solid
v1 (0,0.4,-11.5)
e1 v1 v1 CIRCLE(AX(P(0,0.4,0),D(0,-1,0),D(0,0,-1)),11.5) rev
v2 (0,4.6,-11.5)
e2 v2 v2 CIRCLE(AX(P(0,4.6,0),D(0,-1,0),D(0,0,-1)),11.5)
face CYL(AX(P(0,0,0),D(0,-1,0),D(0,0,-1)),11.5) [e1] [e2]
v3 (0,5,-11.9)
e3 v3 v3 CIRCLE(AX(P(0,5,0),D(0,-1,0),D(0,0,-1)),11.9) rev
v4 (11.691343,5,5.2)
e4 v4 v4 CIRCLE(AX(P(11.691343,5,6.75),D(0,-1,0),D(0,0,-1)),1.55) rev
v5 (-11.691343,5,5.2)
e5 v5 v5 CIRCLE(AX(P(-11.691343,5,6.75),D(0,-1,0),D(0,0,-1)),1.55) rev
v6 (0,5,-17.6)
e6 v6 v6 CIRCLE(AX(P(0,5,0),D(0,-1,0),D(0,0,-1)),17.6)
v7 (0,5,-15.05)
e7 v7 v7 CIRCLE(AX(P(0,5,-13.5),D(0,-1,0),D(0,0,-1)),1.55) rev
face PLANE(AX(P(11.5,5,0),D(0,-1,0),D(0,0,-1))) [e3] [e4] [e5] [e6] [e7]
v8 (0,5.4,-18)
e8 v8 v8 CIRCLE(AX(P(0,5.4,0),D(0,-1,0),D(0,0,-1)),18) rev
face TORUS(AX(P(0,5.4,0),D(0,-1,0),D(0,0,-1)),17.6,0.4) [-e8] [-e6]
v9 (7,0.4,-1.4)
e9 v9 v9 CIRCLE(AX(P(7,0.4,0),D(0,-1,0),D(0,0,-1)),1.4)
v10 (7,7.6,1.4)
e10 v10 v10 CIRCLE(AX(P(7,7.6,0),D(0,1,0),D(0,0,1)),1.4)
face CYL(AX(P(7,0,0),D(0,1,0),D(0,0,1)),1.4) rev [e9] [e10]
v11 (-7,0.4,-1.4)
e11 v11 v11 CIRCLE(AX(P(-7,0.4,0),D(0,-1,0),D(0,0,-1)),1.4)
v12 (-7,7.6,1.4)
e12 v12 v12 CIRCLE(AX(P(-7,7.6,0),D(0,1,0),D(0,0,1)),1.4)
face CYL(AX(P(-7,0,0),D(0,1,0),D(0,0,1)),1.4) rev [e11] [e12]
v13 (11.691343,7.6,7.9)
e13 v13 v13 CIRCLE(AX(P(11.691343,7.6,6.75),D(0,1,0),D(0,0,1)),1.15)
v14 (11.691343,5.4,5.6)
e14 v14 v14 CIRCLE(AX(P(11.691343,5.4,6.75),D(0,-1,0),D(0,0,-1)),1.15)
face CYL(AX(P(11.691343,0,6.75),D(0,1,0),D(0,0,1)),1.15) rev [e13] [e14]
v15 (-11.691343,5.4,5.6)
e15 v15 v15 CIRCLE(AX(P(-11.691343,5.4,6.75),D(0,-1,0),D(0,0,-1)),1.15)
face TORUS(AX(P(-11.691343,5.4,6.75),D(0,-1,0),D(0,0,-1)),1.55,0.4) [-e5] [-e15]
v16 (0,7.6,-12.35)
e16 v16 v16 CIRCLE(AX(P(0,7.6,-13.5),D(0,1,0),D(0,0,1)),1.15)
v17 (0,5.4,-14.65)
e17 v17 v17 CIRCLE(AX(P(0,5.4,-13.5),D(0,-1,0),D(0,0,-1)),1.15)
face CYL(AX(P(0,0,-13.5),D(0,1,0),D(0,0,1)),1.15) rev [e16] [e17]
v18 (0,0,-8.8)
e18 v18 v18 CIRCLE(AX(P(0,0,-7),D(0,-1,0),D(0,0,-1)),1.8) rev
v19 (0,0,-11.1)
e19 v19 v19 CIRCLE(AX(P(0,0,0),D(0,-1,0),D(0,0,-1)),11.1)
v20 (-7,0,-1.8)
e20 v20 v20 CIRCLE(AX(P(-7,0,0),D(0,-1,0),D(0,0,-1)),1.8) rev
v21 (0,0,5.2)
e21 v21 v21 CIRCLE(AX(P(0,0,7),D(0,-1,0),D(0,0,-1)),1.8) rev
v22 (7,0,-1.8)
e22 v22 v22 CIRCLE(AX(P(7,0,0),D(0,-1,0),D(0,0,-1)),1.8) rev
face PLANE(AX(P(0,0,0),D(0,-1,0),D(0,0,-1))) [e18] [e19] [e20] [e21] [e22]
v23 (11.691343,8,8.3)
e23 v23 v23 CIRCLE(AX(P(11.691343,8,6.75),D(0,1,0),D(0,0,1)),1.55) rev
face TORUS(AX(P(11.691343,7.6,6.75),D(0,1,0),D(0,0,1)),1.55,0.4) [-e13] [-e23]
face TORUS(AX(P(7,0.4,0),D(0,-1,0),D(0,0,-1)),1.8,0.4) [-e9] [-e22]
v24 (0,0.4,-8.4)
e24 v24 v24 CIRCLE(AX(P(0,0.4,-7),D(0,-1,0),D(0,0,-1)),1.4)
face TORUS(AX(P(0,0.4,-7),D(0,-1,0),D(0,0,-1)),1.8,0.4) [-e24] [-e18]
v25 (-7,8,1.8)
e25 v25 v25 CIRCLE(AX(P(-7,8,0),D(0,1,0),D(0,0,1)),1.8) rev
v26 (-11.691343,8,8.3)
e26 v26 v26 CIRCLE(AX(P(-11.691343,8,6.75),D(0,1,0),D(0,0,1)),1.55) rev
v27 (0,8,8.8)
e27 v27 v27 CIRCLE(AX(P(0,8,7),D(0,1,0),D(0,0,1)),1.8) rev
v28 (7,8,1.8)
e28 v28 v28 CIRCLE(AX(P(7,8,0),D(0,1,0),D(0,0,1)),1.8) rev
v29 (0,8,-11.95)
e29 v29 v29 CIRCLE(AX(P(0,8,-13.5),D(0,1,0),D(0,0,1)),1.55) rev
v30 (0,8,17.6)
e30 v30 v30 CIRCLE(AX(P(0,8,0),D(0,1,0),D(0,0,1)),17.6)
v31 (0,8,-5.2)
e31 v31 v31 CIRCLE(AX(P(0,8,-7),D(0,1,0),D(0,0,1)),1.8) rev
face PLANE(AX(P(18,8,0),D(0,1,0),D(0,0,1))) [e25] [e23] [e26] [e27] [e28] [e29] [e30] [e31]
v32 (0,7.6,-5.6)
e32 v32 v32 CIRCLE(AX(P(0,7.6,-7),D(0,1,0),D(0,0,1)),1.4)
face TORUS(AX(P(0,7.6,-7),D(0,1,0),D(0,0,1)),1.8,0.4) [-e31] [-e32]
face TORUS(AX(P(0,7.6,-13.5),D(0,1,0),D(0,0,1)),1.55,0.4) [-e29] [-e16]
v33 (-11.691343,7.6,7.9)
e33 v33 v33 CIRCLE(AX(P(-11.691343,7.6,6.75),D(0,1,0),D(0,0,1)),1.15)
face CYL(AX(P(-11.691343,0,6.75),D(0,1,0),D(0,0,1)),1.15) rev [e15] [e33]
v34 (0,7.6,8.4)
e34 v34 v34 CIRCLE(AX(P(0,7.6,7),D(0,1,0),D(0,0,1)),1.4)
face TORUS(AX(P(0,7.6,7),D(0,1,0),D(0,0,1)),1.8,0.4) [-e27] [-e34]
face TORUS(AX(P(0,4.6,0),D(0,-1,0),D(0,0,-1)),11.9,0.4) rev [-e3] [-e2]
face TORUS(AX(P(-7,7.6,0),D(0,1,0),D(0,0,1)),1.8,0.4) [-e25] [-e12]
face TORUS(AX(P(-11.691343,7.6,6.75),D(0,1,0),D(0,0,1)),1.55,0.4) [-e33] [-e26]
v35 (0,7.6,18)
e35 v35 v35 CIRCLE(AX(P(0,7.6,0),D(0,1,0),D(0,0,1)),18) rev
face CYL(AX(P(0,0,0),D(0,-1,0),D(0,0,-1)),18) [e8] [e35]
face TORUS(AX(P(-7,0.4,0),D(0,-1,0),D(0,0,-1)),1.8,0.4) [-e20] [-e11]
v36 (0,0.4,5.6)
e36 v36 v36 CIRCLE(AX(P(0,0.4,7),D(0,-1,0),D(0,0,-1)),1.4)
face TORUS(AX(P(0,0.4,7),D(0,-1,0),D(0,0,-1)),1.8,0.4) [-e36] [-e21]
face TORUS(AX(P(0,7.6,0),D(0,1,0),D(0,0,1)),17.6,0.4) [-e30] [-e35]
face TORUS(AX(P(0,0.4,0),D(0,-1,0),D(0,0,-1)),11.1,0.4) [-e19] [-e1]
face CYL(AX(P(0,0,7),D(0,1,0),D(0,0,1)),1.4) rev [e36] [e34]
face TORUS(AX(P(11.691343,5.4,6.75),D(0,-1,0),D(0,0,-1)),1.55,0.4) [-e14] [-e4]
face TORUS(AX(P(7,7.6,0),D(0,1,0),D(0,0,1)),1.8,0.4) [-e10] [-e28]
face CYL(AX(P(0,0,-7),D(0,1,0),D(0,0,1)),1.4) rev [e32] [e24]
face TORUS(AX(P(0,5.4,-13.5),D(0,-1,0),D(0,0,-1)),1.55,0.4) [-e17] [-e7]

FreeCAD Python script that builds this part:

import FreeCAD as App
import Part
import Sketcher
from FreeCAD import Vector
Q = App.Units.Quantity


def edges_at(feature, points):
    """Names of the edges that pass closest to the given points."""
    edges = feature.Shape.Edges
    near = lambda p: min(range(len(edges)), key=lambda i: edges[i].distToShape(Part.Vertex(*p))[0])
    return sorted({f"Edge{near(p) + 1}" for p in points})


def add_polygon(sketch, points):
    """Adds a closed chain of lines whose ends are joined by coincident constraints."""
    first, n = sketch.GeometryCount, len(points)
    for a, b in zip(points, points[1:] + points[:1]):
        sketch.addGeometry(Part.LineSegment(App.Vector(*a, 0), App.Vector(*b, 0)), False)
    for i in range(n):
        sketch.addConstraint(Sketcher.Constraint("Coincident", first + i, 2, first + (i + 1) % n, 1))

doc = App.newDocument("Part")
body = doc.addObject("PartDesign::Body", "Body")

sketch1 = doc.addObject("Sketcher::SketchObject", "Sketch")
body.addObject(sketch1)
sketch1.AttachmentSupport = (doc.XY_Plane, [""])
sketch1.MapMode = "FlatFace"
add_polygon(sketch1, [(0, 0), (11.5, 0), (11.5, 5), (18, 5), (18, 8), (0, 8)])
sketch1.addConstraint([
    Sketcher.Constraint("Horizontal", 0),
    Sketcher.Constraint("Vertical", 1),
    Sketcher.Constraint("Horizontal", 2),
    Sketcher.Constraint("Vertical", 3),
    Sketcher.Constraint("Horizontal", 4),
    Sketcher.Constraint("Vertical", 5),
    Sketcher.Constraint("Coincident", 5, 2, -1, 1),
    Sketcher.Constraint("DistanceX", 4, 2, 4, 1, Q("18 mm")),
    Sketcher.Constraint("DistanceY", 1, 1, 1, 2, Q("5 mm")),
    Sketcher.Constraint("DistanceY", 3, 1, 3, 2, Q("3 mm")),
    Sketcher.Constraint("DistanceX", 0, 1, 0, 2, Q("11.5 mm")),
])
revolution = doc.addObject("PartDesign::Revolution", "Revolution")
body.addObject(revolution)
revolution.Profile = sketch1
revolution.ReferenceAxis = (sketch1, ["V_Axis"])
revolution.Angle = 360

sketch2 = doc.addObject("Sketcher::SketchObject", "Sketch001")
body.addObject(sketch2)
sketch2.AttachmentSupport = (doc.XZ_Plane, [""])
sketch2.MapMode = "FlatFace"
sketch2.AttachmentOffset = App.Placement(Vector(0, 0, -8), App.Rotation())
sketch2.addGeometry([
    Part.Circle(Vector(0, -13.5, 0), Vector(0, 0, 1), 1.15),
    Part.Circle(Vector(11.691343, 6.75, 0), Vector(0, 0, 1), 1.15),
    Part.Circle(Vector(-11.691343, 6.75, 0), Vector(0, 0, 1), 1.15),
    Part.Circle(Vector(0, -7, 0), Vector(0, 0, 1), 1.4),
    Part.Circle(Vector(7, 0, 0), Vector(0, 0, 1), 1.4),
    Part.Circle(Vector(0, 7, 0), Vector(0, 0, 1), 1.4),
    Part.Circle(Vector(-7, 0, 0), Vector(0, 0, 1), 1.4),
], False)
sketch2.addConstraint([
    Sketcher.Constraint("Equal", 0, 1),
    Sketcher.Constraint("Equal", 1, 2),
    Sketcher.Constraint("Equal", 3, 4),
    Sketcher.Constraint("Equal", 4, 5),
    Sketcher.Constraint("Equal", 5, 6),
    Sketcher.Constraint("Symmetric", 3, 3, 5, 3, -1, 1),
    Sketcher.Constraint("Symmetric", 4, 3, 6, 3, -1, 1),
    Sketcher.Constraint("Symmetric", 1, 3, 2, 3, -2),
    Sketcher.Constraint("PointOnObject", 0, 3, -2),
    Sketcher.Constraint("PointOnObject", 3, 3, -2),
    Sketcher.Constraint("PointOnObject", 4, 3, -1),
    Sketcher.Constraint("Diameter", 0, Q("2.3 mm")),
    Sketcher.Constraint("Diameter", 3, Q("2.8 mm")),
    Sketcher.Constraint("DistanceY", 3, 3, -1, 1, Q("7 mm")),
    Sketcher.Constraint("DistanceX", -1, 1, 4, 3, Q("7 mm")),
    Sketcher.Constraint("DistanceY", 0, 3, -1, 1, Q("13.5 mm")),
    Sketcher.Constraint("DistanceY", -1, 1, 1, 3, Q("6.75 mm")),
    Sketcher.Constraint("DistanceX", -1, 1, 1, 3, Q("11.691343 mm")),
])
pocket1 = doc.addObject("PartDesign::Pocket", "Pocket")
body.addObject(pocket1)
pocket1.Profile = sketch2
pocket1.Type = "ThroughAll"
pocket1.Reversed = True
doc.recompute()

fillet = doc.addObject("PartDesign::Fillet", "Fillet")
body.addObject(fillet)
fillet.Base = (pocket1, edges_at(pocket1, [
    (0, 5, -14.65),
    (0, 8, -14.65),
    (-7, 0, -1.4),
    (-7, 8, -1.4),
    (0, 0, 5.6),
    (0, 8, 5.6),
    (0, 0, -8.4),
    (0, 8, -8.4),
    (11.691, 5, 5.6),
    (11.691, 8, 5.6),
    (-11.691, 5, 5.6),
    (-11.691, 8, 5.6),
    (7, 0, -1.4),
    (7, 8, -1.4),
    (0, 8, 18),
    (0, 5, 18),
    (0, 5, 11.5),
    (0, 0, 11.5),
]))
fillet.Radius = 0.4

doc.recompute()
